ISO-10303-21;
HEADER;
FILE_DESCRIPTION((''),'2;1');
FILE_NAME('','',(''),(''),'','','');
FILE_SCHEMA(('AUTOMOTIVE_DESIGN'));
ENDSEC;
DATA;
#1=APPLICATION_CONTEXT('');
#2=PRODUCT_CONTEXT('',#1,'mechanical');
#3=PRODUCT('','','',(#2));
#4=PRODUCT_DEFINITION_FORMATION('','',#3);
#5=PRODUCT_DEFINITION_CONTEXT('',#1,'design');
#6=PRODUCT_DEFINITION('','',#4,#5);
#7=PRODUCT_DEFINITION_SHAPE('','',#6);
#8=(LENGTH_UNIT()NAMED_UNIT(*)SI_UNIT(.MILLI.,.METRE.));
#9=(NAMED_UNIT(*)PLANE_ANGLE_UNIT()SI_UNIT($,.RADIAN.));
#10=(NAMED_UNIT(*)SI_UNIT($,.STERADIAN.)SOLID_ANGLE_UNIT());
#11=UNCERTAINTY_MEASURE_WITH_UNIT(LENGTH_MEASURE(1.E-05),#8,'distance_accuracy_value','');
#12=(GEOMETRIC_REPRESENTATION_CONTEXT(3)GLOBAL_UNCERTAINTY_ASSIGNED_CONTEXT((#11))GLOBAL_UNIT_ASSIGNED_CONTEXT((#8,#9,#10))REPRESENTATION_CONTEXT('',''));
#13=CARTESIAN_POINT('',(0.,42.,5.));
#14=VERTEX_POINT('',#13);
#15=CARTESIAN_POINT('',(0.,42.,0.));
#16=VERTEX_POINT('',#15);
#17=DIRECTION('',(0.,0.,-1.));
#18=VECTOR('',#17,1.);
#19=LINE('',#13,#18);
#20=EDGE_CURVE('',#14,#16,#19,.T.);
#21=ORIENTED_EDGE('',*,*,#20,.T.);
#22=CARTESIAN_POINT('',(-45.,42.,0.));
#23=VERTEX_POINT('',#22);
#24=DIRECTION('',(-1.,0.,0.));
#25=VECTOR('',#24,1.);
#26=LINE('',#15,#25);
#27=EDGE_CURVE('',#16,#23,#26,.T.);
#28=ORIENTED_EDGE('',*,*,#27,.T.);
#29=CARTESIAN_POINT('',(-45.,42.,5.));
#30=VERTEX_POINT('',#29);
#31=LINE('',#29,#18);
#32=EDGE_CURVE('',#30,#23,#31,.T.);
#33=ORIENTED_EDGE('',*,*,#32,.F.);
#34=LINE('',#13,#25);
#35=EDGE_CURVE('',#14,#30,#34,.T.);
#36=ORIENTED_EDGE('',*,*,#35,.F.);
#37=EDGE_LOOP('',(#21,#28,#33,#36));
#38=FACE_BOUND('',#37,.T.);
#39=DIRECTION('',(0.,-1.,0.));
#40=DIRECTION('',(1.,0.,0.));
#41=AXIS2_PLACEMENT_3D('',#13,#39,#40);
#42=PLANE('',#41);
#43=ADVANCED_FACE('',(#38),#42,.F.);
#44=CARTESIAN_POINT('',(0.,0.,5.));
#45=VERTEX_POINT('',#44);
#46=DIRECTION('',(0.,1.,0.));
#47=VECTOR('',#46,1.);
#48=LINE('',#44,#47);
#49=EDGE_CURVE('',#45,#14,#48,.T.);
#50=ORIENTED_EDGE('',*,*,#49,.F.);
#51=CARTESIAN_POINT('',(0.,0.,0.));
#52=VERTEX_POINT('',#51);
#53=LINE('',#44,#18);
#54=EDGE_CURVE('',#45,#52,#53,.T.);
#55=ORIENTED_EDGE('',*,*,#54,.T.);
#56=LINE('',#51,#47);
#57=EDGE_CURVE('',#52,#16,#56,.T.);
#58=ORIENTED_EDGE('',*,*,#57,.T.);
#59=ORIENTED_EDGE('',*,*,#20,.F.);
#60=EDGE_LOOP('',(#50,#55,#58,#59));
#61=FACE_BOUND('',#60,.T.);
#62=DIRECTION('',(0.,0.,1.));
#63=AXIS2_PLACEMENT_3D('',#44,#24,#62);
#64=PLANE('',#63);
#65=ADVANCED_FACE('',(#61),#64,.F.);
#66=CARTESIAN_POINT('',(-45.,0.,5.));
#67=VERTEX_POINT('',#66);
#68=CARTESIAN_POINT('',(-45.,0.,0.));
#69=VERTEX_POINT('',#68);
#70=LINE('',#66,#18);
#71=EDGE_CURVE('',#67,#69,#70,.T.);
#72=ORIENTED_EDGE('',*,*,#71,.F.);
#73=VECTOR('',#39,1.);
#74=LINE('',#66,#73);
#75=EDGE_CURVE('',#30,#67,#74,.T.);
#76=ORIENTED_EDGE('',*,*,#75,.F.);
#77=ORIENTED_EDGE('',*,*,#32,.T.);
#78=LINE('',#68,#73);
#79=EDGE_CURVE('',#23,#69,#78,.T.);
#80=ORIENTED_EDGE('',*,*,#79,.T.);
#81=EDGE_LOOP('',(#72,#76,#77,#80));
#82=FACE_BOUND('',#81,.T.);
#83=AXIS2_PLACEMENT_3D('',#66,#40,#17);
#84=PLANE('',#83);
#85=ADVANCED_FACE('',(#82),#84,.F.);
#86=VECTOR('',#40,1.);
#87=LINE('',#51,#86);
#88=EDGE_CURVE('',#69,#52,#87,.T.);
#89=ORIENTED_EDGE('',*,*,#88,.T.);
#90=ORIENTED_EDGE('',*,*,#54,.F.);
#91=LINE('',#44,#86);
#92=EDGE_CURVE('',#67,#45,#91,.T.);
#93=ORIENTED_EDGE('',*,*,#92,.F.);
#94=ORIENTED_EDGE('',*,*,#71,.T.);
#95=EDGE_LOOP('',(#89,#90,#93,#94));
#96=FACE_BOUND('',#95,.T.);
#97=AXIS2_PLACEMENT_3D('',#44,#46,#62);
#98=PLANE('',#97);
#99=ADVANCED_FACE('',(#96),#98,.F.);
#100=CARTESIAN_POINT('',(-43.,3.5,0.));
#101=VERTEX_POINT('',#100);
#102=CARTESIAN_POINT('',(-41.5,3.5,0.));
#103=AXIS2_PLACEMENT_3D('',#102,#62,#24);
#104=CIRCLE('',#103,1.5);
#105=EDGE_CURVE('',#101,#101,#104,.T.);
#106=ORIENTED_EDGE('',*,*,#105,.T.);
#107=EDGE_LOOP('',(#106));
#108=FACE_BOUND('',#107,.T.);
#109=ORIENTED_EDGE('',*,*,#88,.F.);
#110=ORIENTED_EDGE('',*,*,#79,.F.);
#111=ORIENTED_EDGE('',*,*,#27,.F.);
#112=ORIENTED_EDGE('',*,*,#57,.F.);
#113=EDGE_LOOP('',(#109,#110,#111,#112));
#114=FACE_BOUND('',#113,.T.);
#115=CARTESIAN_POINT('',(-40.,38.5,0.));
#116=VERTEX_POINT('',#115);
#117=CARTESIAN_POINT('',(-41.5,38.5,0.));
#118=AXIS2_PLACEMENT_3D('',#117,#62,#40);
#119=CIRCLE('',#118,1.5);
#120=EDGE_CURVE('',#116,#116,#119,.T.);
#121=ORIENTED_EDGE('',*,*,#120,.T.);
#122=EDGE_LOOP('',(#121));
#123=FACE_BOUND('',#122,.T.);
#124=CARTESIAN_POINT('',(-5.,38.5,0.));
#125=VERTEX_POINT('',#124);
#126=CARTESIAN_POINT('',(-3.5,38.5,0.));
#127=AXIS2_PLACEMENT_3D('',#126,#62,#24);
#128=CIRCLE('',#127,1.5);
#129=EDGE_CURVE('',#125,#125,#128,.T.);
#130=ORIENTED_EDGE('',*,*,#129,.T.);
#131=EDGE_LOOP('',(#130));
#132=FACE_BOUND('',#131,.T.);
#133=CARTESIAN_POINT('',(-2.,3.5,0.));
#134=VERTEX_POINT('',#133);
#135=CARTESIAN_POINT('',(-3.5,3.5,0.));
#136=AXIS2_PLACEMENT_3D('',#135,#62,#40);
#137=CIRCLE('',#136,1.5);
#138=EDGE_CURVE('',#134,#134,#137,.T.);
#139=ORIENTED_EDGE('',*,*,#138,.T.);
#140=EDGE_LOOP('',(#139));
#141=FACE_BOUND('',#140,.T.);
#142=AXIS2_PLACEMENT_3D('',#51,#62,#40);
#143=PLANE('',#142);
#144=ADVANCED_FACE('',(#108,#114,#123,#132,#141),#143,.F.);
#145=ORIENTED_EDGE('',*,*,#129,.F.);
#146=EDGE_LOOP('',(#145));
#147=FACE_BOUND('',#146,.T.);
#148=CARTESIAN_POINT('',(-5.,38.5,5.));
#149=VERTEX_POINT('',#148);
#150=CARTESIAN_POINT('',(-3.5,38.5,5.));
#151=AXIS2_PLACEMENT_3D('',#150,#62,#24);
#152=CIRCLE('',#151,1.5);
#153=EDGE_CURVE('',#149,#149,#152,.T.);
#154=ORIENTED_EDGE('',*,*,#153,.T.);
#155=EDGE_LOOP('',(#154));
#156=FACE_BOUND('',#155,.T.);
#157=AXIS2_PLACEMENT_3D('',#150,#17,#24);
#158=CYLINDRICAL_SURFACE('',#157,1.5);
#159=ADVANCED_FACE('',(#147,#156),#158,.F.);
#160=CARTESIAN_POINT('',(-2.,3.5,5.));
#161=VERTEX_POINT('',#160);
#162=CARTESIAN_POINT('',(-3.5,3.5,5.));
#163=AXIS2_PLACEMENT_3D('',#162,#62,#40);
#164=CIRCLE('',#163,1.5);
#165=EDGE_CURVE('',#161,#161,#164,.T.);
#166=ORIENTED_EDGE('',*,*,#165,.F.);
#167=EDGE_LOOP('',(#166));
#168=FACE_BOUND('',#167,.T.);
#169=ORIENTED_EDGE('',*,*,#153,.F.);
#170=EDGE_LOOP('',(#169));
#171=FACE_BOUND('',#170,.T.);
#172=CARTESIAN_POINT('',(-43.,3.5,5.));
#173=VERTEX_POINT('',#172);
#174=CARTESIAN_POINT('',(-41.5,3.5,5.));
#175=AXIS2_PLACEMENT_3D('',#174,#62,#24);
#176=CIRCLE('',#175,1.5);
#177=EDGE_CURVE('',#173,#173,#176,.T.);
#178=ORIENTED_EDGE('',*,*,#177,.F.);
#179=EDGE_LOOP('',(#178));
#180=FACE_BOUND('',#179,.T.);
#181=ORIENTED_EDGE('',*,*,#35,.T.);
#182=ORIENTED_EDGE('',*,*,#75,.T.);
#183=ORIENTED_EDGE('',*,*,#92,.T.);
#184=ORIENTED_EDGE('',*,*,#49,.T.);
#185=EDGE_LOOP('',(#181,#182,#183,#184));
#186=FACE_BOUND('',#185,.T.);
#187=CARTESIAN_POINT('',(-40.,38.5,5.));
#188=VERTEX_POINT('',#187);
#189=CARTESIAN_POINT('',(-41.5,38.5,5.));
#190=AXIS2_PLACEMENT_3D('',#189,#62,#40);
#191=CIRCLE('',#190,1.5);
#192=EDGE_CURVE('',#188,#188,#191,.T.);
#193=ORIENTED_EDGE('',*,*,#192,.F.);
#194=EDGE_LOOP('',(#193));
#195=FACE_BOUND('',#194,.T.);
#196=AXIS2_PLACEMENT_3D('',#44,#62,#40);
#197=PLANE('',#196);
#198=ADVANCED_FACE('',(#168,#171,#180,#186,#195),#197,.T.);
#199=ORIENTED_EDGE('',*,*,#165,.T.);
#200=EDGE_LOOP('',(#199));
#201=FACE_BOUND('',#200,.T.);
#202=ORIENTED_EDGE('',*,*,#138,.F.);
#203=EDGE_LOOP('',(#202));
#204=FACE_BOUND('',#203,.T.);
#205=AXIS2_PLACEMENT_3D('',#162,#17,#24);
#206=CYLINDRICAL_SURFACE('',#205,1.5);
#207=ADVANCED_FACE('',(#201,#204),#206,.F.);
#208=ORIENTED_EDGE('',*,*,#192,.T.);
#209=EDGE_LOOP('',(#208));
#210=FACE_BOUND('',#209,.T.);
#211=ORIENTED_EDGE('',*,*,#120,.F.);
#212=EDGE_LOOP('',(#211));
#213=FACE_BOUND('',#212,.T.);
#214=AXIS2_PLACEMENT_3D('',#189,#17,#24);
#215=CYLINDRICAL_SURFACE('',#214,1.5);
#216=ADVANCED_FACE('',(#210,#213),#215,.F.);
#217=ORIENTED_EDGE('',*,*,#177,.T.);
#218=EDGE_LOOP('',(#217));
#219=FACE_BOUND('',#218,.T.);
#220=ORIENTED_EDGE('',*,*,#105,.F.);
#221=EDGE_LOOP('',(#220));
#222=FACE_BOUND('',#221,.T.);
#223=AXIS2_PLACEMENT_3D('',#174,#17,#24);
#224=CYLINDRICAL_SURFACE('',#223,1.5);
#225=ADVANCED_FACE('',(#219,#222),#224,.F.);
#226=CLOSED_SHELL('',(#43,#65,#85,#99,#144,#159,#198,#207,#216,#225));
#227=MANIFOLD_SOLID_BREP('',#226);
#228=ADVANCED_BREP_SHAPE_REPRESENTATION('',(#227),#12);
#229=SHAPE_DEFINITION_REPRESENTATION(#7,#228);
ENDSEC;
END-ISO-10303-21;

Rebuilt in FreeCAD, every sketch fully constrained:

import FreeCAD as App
import Part
import Sketcher

V = App.Vector


def add_polygon(sketch, points):
    """Adds a closed chain of lines whose ends are joined by coincident constraints."""
    first, n = sketch.GeometryCount, len(points)
    for a, b in zip(points, points[1:] + points[:1]):
        sketch.addGeometry(Part.LineSegment(App.Vector(*a, 0), App.Vector(*b, 0)), False)
    for i in range(n):
        sketch.addConstraint(Sketcher.Constraint("Coincident", first + i, 2, first + (i + 1) % n, 1))

doc = App.newDocument("Part")
params = doc.addObject("Spreadsheet::Sheet", "Params")
for row, (alias, value) in enumerate([
    ("sketch1_diameter", "3 mm"),
    ("sketch1_width", "45 mm"),
    ("sketch1_height", "42 mm"),
    ("pad1_length", "5 mm"),
], start=1):
    params.set(f"A{row}", alias)
    params.set(f"B{row}", "=" + value)
    params.setAlias(f"B{row}", alias)

body = doc.addObject("PartDesign::Body", "Body")

# Sketch on XY plane
sketch1 = body.newObject("Sketcher::SketchObject", "Sketch")
sketch1.AttachmentSupport = (doc.getObject("XY_Plane"), [""])
sketch1.MapMode = "FlatFace"
add_polygon(sketch1, [(-45, 42), (-45, 0), (0, 0), (0, 42)])  # lines 0-3
sketch1.addGeometry(Part.Circle(V(-41.5, 3.5, 0), V(0, 0, 1), 1.5), False)  # 4
sketch1.addGeometry(Part.Circle(V(-3.5, 3.5, 0), V(0, 0, 1), 1.5), False)  # 5
sketch1.addGeometry(Part.Circle(V(-41.5, 38.5, 0), V(0, 0, 1), 1.5), False)  # 6
sketch1.addGeometry(Part.Circle(V(-3.5, 38.5, 0), V(0, 0, 1), 1.5), False)  # 7
sketch1.addConstraint([
    Sketcher.Constraint("Vertical", 0),
    Sketcher.Constraint("Horizontal", 1),
    Sketcher.Constraint("Vertical", 2),
    Sketcher.Constraint("Horizontal", 3),
    Sketcher.Constraint("Coincident", 1, 2, -1, 1),
    Sketcher.Constraint("Equal", 4, 5),
    Sketcher.Constraint("Equal", 5, 6),
    Sketcher.Constraint("Equal", 6, 7),
    Sketcher.Constraint("Horizontal", 4, 3, 5, 3),
    Sketcher.Constraint("Horizontal", 6, 3, 7, 3),
    Sketcher.Constraint("Vertical", 4, 3, 6, 3),
    Sketcher.Constraint("Vertical", 5, 3, 7, 3),
    Sketcher.Constraint("Diameter", 4, 3.0),
    Sketcher.Constraint("DistanceX", 1, 1, 1, 2, 45.0),
    Sketcher.Constraint("DistanceY", 0, 2, 0, 1, 42.0),
    Sketcher.Constraint("DistanceX", 4, 3, 5, 3, 38.0),
    Sketcher.Constraint("DistanceY", 4, 3, 6, 3, 35.0),
    Sketcher.Constraint("DistanceX", 4, 3, -1, 1, 41.5),
    Sketcher.Constraint("DistanceY", -1, 1, 4, 3, 3.5),
])
sketch1.setExpression("Constraints[16]", "Params.sketch1_diameter")
sketch1.setExpression("Constraints[17]", "Params.sketch1_width")
sketch1.setExpression("Constraints[18]", "Params.sketch1_height")
pad1 = body.newObject("PartDesign::Pad", "Pad")
pad1.Profile = sketch1
pad1.setExpression("Length", "Params.pad1_length")

doc.recompute()
